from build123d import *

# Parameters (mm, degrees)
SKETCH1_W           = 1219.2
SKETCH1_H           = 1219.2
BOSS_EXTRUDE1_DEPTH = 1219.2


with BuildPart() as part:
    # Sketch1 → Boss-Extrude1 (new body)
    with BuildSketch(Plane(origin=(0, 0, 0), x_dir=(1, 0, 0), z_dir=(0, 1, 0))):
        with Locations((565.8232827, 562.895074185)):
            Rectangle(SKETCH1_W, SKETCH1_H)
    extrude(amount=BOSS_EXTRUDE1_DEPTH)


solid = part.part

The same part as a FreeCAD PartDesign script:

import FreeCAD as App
import Part
import Sketcher

V = App.Vector
Q = App.Units.Quantity


def add_polygon(sketch, points):
    """Adds a closed chain of lines whose ends are joined by coincident constraints."""
    first, n = sketch.GeometryCount, len(points)
    for a, b in zip(points, points[1:] + points[:1]):
        sketch.addGeometry(Part.LineSegment(App.Vector(*a, 0), App.Vector(*b, 0)), False)
    for i in range(n):
        sketch.addConstraint(Sketcher.Constraint("Coincident", first + i, 2, first + (i + 1) % n, 1))

doc = App.newDocument("Part")
body = doc.addObject("PartDesign::Body", "Body")

# Sketch on XZ plane
sketch1 = body.newObject("Sketcher::SketchObject", "Sketch")
sketch1.AttachmentSupport = (doc.getObject("XZ_Plane"), [""])
sketch1.MapMode = "FlatFace"
add_polygon(sketch1, [(-44, -1172), (-44, 47), (1175, 47), (1175, -1172)])  # lines 0-3
sketch1.addConstraint(Sketcher.Constraint("Vertical", 0))
sketch1.addConstraint(Sketcher.Constraint("Horizontal", 1))
sketch1.addConstraint(Sketcher.Constraint("Vertical", 2))
sketch1.addConstraint(Sketcher.Constraint("Horizontal", 3))
sketch1.addConstraint(Sketcher.Constraint("Equal", 3, 0))
sketch1.addConstraint(Sketcher.Constraint("DistanceX", 1, 1, 1, 2, Q("48 in")))
sketch1.addConstraint(Sketcher.Constraint("DistanceX", 0, 2, -1, 1, Q("43.776717 mm")))
sketch1.addConstraint(Sketcher.Constraint("DistanceY", -1, 1, 0, 2, Q("46.704926 mm")))
pad1 = body.newObject("PartDesign::Pad", "Pad")
pad1.Profile = sketch1
pad1.Length = Q("48 in")
pad1.Reversed = True

doc.recompute()
